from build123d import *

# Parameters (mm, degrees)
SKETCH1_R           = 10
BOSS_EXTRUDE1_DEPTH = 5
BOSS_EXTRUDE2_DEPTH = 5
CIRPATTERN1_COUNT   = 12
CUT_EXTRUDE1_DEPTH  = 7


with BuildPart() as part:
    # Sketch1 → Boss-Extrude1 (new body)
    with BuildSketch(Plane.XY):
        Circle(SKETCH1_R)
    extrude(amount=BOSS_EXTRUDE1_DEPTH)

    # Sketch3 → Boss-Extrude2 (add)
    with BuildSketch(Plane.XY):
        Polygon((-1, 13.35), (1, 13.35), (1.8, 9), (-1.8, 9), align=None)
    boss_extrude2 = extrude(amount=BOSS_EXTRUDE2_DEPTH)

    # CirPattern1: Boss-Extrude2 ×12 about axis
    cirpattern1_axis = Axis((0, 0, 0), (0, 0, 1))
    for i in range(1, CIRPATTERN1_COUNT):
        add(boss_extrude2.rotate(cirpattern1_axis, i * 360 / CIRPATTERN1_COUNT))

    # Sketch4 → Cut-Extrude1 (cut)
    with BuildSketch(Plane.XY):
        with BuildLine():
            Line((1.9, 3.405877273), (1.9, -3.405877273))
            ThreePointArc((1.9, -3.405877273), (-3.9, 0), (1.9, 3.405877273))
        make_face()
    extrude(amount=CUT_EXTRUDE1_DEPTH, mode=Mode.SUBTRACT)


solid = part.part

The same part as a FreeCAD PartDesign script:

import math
import FreeCAD as App
import Part
import Sketcher

doc = App.newDocument("Part")
params = doc.addObject("Spreadsheet::Sheet", "Params")
for row, (alias, value) in enumerate([
    ("sketch1_diameter", "20 mm"),
    ("pad1_length", "5 mm"),
    ("sketch2_width", "2 mm"),
    ("sketch2_width2", "3.6 mm"),
    ("pad2_length", "5 mm"),
    ("sketch3_radius", "3.9 mm"),
    ("pocket1_length", "7 mm"),
], start=1):
    params.set(f"A{row}", alias)
    params.set(f"B{row}", "=" + value)
    params.setAlias(f"B{row}", alias)

body = doc.addObject("PartDesign::Body", "Body")

# Sketch on XY plane
sketch1 = body.newObject("Sketcher::SketchObject", "Sketch")
sketch1.AttachmentSupport = (doc.getObject("XY_Plane"), [""])
sketch1.MapMode = "FlatFace"
sketch1.addGeometry(Part.Circle(App.Vector(0, 0, 0), App.Vector(0, 0, 1), 10), False)
sketch1.addConstraint([
    Sketcher.Constraint("Coincident", 0, 3, -1, 1),
    Sketcher.Constraint("Diameter", 0, 20.0),
])
sketch1.setExpression("Constraints[1]", "Params.sketch1_diameter")
pad1 = body.newObject("PartDesign::Pad", "Pad")
pad1.Profile = sketch1
pad1.setExpression("Length", "Params.pad1_length")

# Sketch on XY plane
sketch2 = body.newObject("Sketcher::SketchObject", "Sketch001")
sketch2.AttachmentSupport = (doc.getObject("XY_Plane"), [""])
sketch2.MapMode = "FlatFace"
sketch2.addGeometry([
    Part.LineSegment(App.Vector(1, 13.3, 0), App.Vector(-1, 13.3, 0)),
    Part.LineSegment(App.Vector(-1, 13.3, 0), App.Vector(-1.8, 9, 0)),
    Part.LineSegment(App.Vector(-1.8, 9, 0), App.Vector(1.8, 9, 0)),
    Part.LineSegment(App.Vector(1.8, 9, 0), App.Vector(1, 13.3, 0)),
], False)
sketch2.addConstraint([
    Sketcher.Constraint("Coincident", 0, 2, 1, 1),
    Sketcher.Constraint("Coincident", 1, 2, 2, 1),
    Sketcher.Constraint("Coincident", 2, 2, 3, 1),
    Sketcher.Constraint("Coincident", 3, 2, 0, 1),
    Sketcher.Constraint("Horizontal", 0),
    Sketcher.Constraint("Horizontal", 2),
    Sketcher.Constraint("Equal", 1, 3),
    Sketcher.Constraint("DistanceX", 0, 2, 0, 1, 2.0),
    Sketcher.Constraint("DistanceX", 2, 1, 2, 2, 3.6),
    Sketcher.Constraint("DistanceX", 0, 2, -1, 1, 1.0),
    Sketcher.Constraint("DistanceY", -1, 1, 1, 2, 9.0),
    Sketcher.Constraint("DistanceY", -1, 1, 0, 2, 13.35),
])
sketch2.setExpression("Constraints[7]", "Params.sketch2_width")
sketch2.setExpression("Constraints[8]", "Params.sketch2_width2")
pad2 = body.newObject("PartDesign::Pad", "Pad001")
pad2.Profile = sketch2
pad2.setExpression("Length", "Params.pad2_length")
doc.recompute()

polarpattern = body.newObject("PartDesign::PolarPattern", "PolarPattern")
polarpattern.Originals = [pad2]
polarpattern.Axis = (doc.getObject("Z_Axis"), [""])
polarpattern.Angle = 360
polarpattern.Occurrences = 12
body.Tip = polarpattern

# Sketch on XY plane
sketch3 = body.newObject("Sketcher::SketchObject", "Sketch002")
sketch3.AttachmentSupport = (doc.getObject("XY_Plane"), [""])
sketch3.MapMode = "FlatFace"
sketch3.addGeometry([
    Part.LineSegment(App.Vector(1.9, -3.4, 0), App.Vector(1.9, 3.4, 0)),
    Part.ArcOfCircle(Part.Circle(App.Vector(0, 0, 0), App.Vector(0, 0, 1), 3.9), math.radians(61), math.radians(299)),
], False)
sketch3.addConstraint([
    Sketcher.Constraint("Coincident", 0, 1, 1, 2),
    Sketcher.Constraint("Coincident", 1, 1, 0, 2),
    Sketcher.Constraint("Vertical", 0),
    Sketcher.Constraint("Coincident", 1, 3, -1, 1),
    Sketcher.Constraint("Radius", 1, 3.9),
    Sketcher.Constraint("DistanceX", -1, 1, 0, 1, 1.9),
])
sketch3.setExpression("Constraints[4]", "Params.sketch3_radius")
pocket1 = body.newObject("PartDesign::Pocket", "Pocket")
pocket1.Profile = sketch3
pocket1.setExpression("Length", "Params.pocket1_length")
pocket1.Reversed = True

doc.recompute()
